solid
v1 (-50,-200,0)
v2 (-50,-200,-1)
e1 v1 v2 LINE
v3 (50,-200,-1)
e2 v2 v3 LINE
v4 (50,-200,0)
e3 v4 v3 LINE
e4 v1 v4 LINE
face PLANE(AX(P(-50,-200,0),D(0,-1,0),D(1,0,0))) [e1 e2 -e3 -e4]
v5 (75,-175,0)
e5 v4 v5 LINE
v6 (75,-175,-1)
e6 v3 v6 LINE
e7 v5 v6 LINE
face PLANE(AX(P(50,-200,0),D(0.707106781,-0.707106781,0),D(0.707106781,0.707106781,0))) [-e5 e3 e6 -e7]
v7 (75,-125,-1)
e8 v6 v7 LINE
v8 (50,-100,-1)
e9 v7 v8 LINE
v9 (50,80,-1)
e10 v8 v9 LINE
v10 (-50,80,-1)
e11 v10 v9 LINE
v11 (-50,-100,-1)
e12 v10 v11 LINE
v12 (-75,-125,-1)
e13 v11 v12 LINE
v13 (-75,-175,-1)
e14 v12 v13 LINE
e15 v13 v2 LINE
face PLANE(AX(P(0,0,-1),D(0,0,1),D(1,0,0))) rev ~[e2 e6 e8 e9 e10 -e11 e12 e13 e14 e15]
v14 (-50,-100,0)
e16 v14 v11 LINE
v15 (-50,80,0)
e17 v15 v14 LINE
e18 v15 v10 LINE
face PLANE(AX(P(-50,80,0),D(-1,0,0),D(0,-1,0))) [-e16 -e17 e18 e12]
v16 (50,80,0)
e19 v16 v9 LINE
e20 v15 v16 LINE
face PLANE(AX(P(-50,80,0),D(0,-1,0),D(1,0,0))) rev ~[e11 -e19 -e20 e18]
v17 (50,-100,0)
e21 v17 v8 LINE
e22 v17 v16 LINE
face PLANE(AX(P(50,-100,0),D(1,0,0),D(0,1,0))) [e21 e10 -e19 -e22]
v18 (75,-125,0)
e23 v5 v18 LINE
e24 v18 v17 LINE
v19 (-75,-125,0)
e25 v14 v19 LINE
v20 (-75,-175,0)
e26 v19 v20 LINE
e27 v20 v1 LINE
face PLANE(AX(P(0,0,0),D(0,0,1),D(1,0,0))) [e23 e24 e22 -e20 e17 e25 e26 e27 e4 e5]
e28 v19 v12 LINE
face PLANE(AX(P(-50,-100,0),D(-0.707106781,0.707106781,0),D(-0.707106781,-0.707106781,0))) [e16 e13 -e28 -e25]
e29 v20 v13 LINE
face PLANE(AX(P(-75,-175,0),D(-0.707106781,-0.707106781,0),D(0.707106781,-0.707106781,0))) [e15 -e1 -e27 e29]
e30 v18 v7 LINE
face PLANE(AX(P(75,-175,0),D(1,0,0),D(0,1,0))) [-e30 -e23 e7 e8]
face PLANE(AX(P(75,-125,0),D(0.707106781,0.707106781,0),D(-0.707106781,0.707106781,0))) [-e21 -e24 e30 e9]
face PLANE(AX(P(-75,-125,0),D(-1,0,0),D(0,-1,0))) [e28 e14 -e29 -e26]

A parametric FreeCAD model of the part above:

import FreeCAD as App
import Part
import Sketcher
from FreeCAD import Vector

doc = App.newDocument("Part")
body = doc.addObject("PartDesign::Body", "Body")

# Sketch on XY plane
sketch1 = doc.addObject("Sketcher::SketchObject", "Sketch")
body.addObject(sketch1)
sketch1.AttachmentSupport = (doc.XY_Plane, [""])
sketch1.MapMode = "FlatFace"
sketch1.addGeometry([
    Part.LineSegment(Vector(-50, 80, 0), Vector(-50, -100, 0)),  # 0
    Part.LineSegment(Vector(-50, -100, 0), Vector(-75, -125, 0)),  # 1
    Part.LineSegment(Vector(-75, -125, 0), Vector(-75, -175, 0)),  # 2
    Part.LineSegment(Vector(-75, -175, 0), Vector(-50, -200, 0)),  # 3
    Part.LineSegment(Vector(-50, -200, 0), Vector(50, -200, 0)),  # 4
    Part.LineSegment(Vector(50, -200, 0), Vector(75, -175, 0)),  # 5
    Part.LineSegment(Vector(75, -175, 0), Vector(75, -125, 0)),  # 6
    Part.LineSegment(Vector(75, -125, 0), Vector(50, -100, 0)),  # 7
    Part.LineSegment(Vector(50, -100, 0), Vector(50, 80, 0)),  # 8
    Part.LineSegment(Vector(50, 80, 0), Vector(-50, 80, 0)),  # 9
], False)
sketch1.addConstraint([
    Sketcher.Constraint("Coincident", 0, 2, 1, 1),
    Sketcher.Constraint("Coincident", 1, 2, 2, 1),
    Sketcher.Constraint("Coincident", 2, 2, 3, 1),
    Sketcher.Constraint("Coincident", 3, 2, 4, 1),
    Sketcher.Constraint("Coincident", 4, 2, 5, 1),
    Sketcher.Constraint("Coincident", 5, 2, 6, 1),
    Sketcher.Constraint("Coincident", 6, 2, 7, 1),
    Sketcher.Constraint("Coincident", 7, 2, 8, 1),
    Sketcher.Constraint("Coincident", 8, 2, 9, 1),
    Sketcher.Constraint("Coincident", 9, 2, 0, 1),
    Sketcher.Constraint("Vertical", 0),
    Sketcher.Constraint("Vertical", 2),
    Sketcher.Constraint("Horizontal", 4),
    Sketcher.Constraint("Vertical", 6),
    Sketcher.Constraint("Vertical", 8),
    Sketcher.Constraint("Horizontal", 9),
    Sketcher.Constraint("Symmetric", 2, 2, 5, 2, -2),
    Sketcher.Constraint("Symmetric", 0, 2, 7, 2, -2),
    Sketcher.Constraint("Perpendicular", 1, 3),
    Sketcher.Constraint("Perpendicular", 3, 5),
    Sketcher.Constraint("Perpendicular", 5, 7),
    Sketcher.Constraint("Horizontal", 1, 2, 6, 2),
    Sketcher.Constraint("Vertical", 0, 2, 3, 2),
    Sketcher.Constraint("DistanceX", 4, 1, 4, 2, 100.0),
    Sketcher.Constraint("DistanceY", 0, 2, 0, 1, 180.0),
    Sketcher.Constraint("DistanceY", 2, 2, 2, 1, 50.0),
    Sketcher.Constraint("DistanceY", 0, 2, -1, 1, 100.0),
    Sketcher.Constraint("DistanceX", 1, 2, -1, 1, 75.0),
])
pad1 = doc.addObject("PartDesign::Pad", "Pad")
body.addObject(pad1)
pad1.Profile = sketch1
pad1.Length = 1
pad1.Reversed = True

doc.recompute()
